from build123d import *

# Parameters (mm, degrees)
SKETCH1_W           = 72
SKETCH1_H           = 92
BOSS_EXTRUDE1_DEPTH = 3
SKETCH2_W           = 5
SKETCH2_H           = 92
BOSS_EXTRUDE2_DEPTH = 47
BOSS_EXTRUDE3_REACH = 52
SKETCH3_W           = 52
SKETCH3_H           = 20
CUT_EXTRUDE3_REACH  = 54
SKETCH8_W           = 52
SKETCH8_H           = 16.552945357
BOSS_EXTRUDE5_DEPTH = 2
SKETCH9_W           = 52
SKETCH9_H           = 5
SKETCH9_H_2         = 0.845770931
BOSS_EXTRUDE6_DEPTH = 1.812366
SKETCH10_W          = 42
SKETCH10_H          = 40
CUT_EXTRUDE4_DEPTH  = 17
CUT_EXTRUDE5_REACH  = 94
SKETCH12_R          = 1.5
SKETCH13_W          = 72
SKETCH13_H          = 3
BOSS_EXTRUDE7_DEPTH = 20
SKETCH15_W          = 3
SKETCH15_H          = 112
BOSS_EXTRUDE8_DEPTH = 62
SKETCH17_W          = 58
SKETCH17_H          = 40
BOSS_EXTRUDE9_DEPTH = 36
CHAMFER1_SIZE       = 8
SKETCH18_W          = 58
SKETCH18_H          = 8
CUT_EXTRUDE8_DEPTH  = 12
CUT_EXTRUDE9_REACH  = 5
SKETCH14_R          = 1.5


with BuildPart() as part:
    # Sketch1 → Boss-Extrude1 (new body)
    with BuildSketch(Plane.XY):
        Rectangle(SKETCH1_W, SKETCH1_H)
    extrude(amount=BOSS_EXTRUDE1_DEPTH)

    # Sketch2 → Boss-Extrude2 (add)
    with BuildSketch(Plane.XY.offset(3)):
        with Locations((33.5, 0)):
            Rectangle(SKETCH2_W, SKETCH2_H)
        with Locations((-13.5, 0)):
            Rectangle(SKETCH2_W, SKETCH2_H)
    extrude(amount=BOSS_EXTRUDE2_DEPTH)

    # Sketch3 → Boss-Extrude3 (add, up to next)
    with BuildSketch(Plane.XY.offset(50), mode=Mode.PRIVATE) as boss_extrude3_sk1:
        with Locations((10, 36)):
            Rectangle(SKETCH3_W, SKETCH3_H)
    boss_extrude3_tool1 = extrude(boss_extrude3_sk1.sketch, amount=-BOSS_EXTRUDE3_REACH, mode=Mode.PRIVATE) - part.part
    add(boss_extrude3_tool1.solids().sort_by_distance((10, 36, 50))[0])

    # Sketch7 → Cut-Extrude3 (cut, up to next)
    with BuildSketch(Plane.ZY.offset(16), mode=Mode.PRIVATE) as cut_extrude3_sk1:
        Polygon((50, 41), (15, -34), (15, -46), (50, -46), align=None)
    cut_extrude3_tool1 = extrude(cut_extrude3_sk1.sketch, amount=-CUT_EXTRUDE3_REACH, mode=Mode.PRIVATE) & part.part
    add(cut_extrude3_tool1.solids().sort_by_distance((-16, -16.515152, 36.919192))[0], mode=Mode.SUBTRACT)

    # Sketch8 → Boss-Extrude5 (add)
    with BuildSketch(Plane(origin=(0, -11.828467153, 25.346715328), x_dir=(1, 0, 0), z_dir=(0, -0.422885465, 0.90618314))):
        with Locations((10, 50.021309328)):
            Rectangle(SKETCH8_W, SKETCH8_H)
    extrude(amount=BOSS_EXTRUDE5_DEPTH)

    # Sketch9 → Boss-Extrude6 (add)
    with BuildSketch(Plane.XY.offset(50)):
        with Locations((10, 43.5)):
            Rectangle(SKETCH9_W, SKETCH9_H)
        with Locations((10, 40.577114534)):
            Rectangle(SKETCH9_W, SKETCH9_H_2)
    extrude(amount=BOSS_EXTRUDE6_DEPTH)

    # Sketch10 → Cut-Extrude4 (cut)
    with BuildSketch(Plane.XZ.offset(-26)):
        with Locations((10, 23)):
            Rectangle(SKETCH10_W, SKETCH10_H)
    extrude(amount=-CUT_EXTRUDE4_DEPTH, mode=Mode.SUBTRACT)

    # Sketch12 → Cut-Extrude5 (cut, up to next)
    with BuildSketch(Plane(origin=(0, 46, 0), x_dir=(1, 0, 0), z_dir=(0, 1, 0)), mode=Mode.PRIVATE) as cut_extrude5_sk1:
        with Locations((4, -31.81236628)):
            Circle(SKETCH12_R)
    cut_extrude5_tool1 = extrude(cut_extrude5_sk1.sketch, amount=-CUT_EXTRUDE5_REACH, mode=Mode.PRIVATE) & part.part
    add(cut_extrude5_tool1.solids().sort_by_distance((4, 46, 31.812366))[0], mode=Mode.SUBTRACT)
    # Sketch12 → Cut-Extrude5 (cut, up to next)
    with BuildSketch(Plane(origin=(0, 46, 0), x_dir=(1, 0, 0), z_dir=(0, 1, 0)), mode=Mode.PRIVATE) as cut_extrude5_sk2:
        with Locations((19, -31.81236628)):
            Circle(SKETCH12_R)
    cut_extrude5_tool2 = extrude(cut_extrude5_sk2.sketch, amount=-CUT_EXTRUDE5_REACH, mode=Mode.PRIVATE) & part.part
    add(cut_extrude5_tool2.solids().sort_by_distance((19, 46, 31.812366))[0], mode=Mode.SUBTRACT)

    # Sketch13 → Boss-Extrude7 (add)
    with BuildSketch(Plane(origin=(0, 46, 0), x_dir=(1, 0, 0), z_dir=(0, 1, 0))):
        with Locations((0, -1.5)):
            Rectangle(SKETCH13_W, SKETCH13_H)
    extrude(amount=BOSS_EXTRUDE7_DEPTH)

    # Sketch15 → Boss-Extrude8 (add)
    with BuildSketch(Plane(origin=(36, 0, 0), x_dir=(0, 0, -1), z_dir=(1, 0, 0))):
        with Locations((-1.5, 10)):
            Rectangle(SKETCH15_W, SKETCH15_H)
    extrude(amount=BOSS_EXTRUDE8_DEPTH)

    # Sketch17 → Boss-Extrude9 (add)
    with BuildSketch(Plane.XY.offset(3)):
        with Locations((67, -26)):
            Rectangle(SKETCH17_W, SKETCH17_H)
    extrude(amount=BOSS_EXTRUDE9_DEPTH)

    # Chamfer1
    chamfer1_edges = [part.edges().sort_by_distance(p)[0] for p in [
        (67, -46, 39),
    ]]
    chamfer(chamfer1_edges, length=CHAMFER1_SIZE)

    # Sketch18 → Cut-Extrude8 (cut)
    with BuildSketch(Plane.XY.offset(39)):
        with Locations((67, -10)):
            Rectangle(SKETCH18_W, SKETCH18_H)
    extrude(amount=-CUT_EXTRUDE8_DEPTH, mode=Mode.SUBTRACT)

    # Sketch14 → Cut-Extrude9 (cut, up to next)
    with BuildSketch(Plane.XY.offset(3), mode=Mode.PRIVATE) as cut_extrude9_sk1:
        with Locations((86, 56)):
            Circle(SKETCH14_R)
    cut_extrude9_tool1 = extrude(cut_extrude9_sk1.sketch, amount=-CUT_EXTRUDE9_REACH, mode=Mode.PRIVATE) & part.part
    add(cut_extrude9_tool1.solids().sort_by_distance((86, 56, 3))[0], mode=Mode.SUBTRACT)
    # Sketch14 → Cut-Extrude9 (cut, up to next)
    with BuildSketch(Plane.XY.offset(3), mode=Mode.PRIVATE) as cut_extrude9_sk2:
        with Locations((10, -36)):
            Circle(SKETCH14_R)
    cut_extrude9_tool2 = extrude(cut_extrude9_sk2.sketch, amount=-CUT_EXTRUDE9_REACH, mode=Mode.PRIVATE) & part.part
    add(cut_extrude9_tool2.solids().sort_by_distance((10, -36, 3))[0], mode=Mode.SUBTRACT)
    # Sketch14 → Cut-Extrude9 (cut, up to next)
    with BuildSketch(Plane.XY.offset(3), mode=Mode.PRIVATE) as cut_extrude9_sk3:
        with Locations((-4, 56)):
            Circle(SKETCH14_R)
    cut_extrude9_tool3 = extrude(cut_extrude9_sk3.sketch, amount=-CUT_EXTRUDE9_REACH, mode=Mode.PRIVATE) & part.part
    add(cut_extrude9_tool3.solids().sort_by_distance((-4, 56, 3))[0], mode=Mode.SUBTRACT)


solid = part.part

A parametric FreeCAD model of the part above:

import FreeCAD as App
import Part
import Sketcher
Q = App.Units.Quantity


def edges_at(feature, points):
    """Names of the edges that pass closest to the given points."""
    edges = feature.Shape.Edges
    near = lambda p: min(range(len(edges)), key=lambda i: edges[i].distToShape(Part.Vertex(*p))[0])
    return sorted({f"Edge{near(p) + 1}" for p in points})


def add_polygon(sketch, points):
    """Adds a closed chain of lines whose ends are joined by coincident constraints."""
    first, n = sketch.GeometryCount, len(points)
    for a, b in zip(points, points[1:] + points[:1]):
        sketch.addGeometry(Part.LineSegment(App.Vector(*a, 0), App.Vector(*b, 0)), False)
    for i in range(n):
        sketch.addConstraint(Sketcher.Constraint("Coincident", first + i, 2, first + (i + 1) % n, 1))

doc = App.newDocument("Part")
body = doc.addObject("PartDesign::Body", "Body")

sketch1 = doc.addObject("Sketcher::SketchObject", "Sketch")
body.addObject(sketch1)
sketch1.AttachmentSupport = (doc.XY_Plane, [""])
sketch1.MapMode = "FlatFace"
add_polygon(sketch1, [(-36, 46), (-36, -46), (36, -46), (36, 46)])
sketch1.addConstraint(Sketcher.Constraint("Vertical", 0))
sketch1.addConstraint(Sketcher.Constraint("Horizontal", 1))
sketch1.addConstraint(Sketcher.Constraint("Vertical", 2))
sketch1.addConstraint(Sketcher.Constraint("Horizontal", 3))
sketch1.addConstraint(Sketcher.Constraint("Symmetric", 0, 2, 2, 2, -1, 1))
sketch1.addConstraint(Sketcher.Constraint("DistanceX", 1, 1, 1, 2, Q("72 mm")))
sketch1.addConstraint(Sketcher.Constraint("DistanceY", 0, 2, 0, 1, Q("92 mm")))
pad1 = doc.addObject("PartDesign::Pad", "Pad")
body.addObject(pad1)
pad1.Profile = sketch1
pad1.Length = 3

sketch2 = doc.addObject("Sketcher::SketchObject", "Sketch001")
body.addObject(sketch2)
sketch2.AttachmentSupport = (doc.XY_Plane, [""])
sketch2.MapMode = "FlatFace"
sketch2.AttachmentOffset = App.Placement(App.Vector(0, 0, 3), App.Rotation())
add_polygon(sketch2, [(31, 46), (31, -46), (36, -46), (36, 46)])
add_polygon(sketch2, [(-16, 46), (-16, -46), (-11, -46), (-11, 46)])
sketch2.addConstraint(Sketcher.Constraint("Vertical", 0))
sketch2.addConstraint(Sketcher.Constraint("Horizontal", 1))
sketch2.addConstraint(Sketcher.Constraint("Vertical", 2))
sketch2.addConstraint(Sketcher.Constraint("Horizontal", 3))
sketch2.addConstraint(Sketcher.Constraint("Vertical", 4))
sketch2.addConstraint(Sketcher.Constraint("Horizontal", 5))
sketch2.addConstraint(Sketcher.Constraint("Vertical", 6))
sketch2.addConstraint(Sketcher.Constraint("Horizontal", 7))
sketch2.addConstraint(Sketcher.Constraint("Horizontal", 1, 2, 4, 2))
sketch2.addConstraint(Sketcher.Constraint("Horizontal", 3, 2, 6, 2))
sketch2.addConstraint(Sketcher.Constraint("Equal", 3, 5))
sketch2.addConstraint(Sketcher.Constraint("DistanceX", 1, 1, 1, 2, Q("5 mm")))
sketch2.addConstraint(Sketcher.Constraint("DistanceY", 0, 2, 0, 1, Q("92 mm")))
sketch2.addConstraint(Sketcher.Constraint("DistanceX", -1, 1, 0, 2, Q("31 mm")))
sketch2.addConstraint(Sketcher.Constraint("DistanceY", 0, 2, -1, 1, Q("46 mm")))
sketch2.addConstraint(Sketcher.Constraint("DistanceX", 4, 2, -1, 1, Q("16 mm")))
pad2 = doc.addObject("PartDesign::Pad", "Pad001")
body.addObject(pad2)
pad2.Profile = sketch2
pad2.Length = 47

sketch3 = doc.addObject("Sketcher::SketchObject", "Sketch002")
body.addObject(sketch3)
sketch3.AttachmentSupport = (doc.XY_Plane, [""])
sketch3.MapMode = "FlatFace"
sketch3.AttachmentOffset = App.Placement(App.Vector(0, 0, 50), App.Rotation())
add_polygon(sketch3, [(-16, 46), (-16, 26), (36, 26), (36, 46)])
sketch3.addConstraint(Sketcher.Constraint("Vertical", 0))
sketch3.addConstraint(Sketcher.Constraint("Horizontal", 1))
sketch3.addConstraint(Sketcher.Constraint("Vertical", 2))
sketch3.addConstraint(Sketcher.Constraint("Horizontal", 3))
sketch3.addConstraint(Sketcher.Constraint("DistanceX", 1, 1, 1, 2, Q("52 mm")))
sketch3.addConstraint(Sketcher.Constraint("DistanceY", 0, 2, 0, 1, Q("20 mm")))
sketch3.addConstraint(Sketcher.Constraint("DistanceX", 0, 2, -1, 1, Q("16 mm")))
sketch3.addConstraint(Sketcher.Constraint("DistanceY", -1, 1, 0, 2, Q("26 mm")))
pad3 = doc.addObject("PartDesign::Pad", "Pad002")
body.addObject(pad3)
pad3.Profile = sketch3
pad3.Type = "UpToFirst"
pad3.Reversed = True

sketch4 = doc.addObject("Sketcher::SketchObject", "Sketch003")
body.addObject(sketch4)
sketch4.AttachmentSupport = (doc.YZ_Plane, [""])
sketch4.MapMode = "FlatFace"
sketch4.AttachmentOffset = App.Placement(App.Vector(0, 0, -16), App.Rotation())
add_polygon(sketch4, [(41, 50), (-34, 15), (-46, 15), (-46, 50)])
sketch4.addConstraint(Sketcher.Constraint("Horizontal", 1))
sketch4.addConstraint(Sketcher.Constraint("Vertical", 2))
sketch4.addConstraint(Sketcher.Constraint("Horizontal", 3))
sketch4.addConstraint(Sketcher.Constraint("DistanceX", 1, 2, 1, 1, Q("12 mm")))
sketch4.addConstraint(Sketcher.Constraint("DistanceX", 3, 1, 3, 2, Q("87 mm")))
sketch4.addConstraint(Sketcher.Constraint("DistanceY", 2, 1, 2, 2, Q("35 mm")))
sketch4.addConstraint(Sketcher.Constraint("DistanceX", 0, 2, -1, 1, Q("34 mm")))
sketch4.addConstraint(Sketcher.Constraint("DistanceY", -1, 1, 0, 2, Q("15 mm")))
pocket1 = doc.addObject("PartDesign::Pocket", "Pocket")
body.addObject(pocket1)
pocket1.Profile = sketch4
pocket1.Length = 52
pocket1.Reversed = True

sketch5 = doc.addObject("Sketcher::SketchObject", "Sketch004")
body.addObject(sketch5)
sketch5.Placement = App.Placement(App.Vector(0, -11.828467, 25.346715), App.Rotation(App.Vector(1, 0, 0), App.Vector(0, 0.90618314, 0.422885465), App.Vector(0, -0.422885465, 0.90618314), "ZXY"))
add_polygon(sketch5, [(-16, 58), (-16, 42), (36, 42), (36, 58)])
sketch5.addConstraint(Sketcher.Constraint("Vertical", 0))
sketch5.addConstraint(Sketcher.Constraint("Horizontal", 1))
sketch5.addConstraint(Sketcher.Constraint("Vertical", 2))
sketch5.addConstraint(Sketcher.Constraint("Horizontal", 3))
sketch5.addConstraint(Sketcher.Constraint("DistanceX", 1, 1, 1, 2, Q("52 mm")))
sketch5.addConstraint(Sketcher.Constraint("DistanceX", 0, 2, -1, 1, Q("16 mm")))
sketch5.addConstraint(Sketcher.Constraint("DistanceY", 0, 2, 0, 1, Q("16.552945 mm")))
sketch5.addConstraint(Sketcher.Constraint("DistanceY", -1, 1, 2, 2, Q("58.297782 mm")))
pad4 = doc.addObject("PartDesign::Pad", "Pad003")
body.addObject(pad4)
pad4.Profile = sketch5
pad4.Length = 2

sketch6 = doc.addObject("Sketcher::SketchObject", "Sketch005")
body.addObject(sketch6)
sketch6.AttachmentSupport = (doc.XY_Plane, [""])
sketch6.MapMode = "FlatFace"
sketch6.AttachmentOffset = App.Placement(App.Vector(0, 0, 50), App.Rotation())
add_polygon(sketch6, [(-16, 46), (-16, 40), (36, 40), (36, 46)])
sketch6.addConstraint(Sketcher.Constraint("Vertical", 0))
sketch6.addConstraint(Sketcher.Constraint("Horizontal", 1))
sketch6.addConstraint(Sketcher.Constraint("Vertical", 2))
sketch6.addConstraint(Sketcher.Constraint("Horizontal", 3))
sketch6.addConstraint(Sketcher.Constraint("DistanceX", 1, 1, 1, 2, Q("52 mm")))
sketch6.addConstraint(Sketcher.Constraint("DistanceX", 0, 2, -1, 1, Q("16 mm")))
sketch6.addConstraint(Sketcher.Constraint("DistanceY", -1, 1, 2, 2, Q("46 mm")))
sketch6.addConstraint(Sketcher.Constraint("DistanceY", 0, 2, 0, 1, Q("5.845771 mm")))
pad5 = doc.addObject("PartDesign::Pad", "Pad004")
body.addObject(pad5)
pad5.Profile = sketch6
pad5.Length = 1.812366

sketch7 = doc.addObject("Sketcher::SketchObject", "Sketch006")
body.addObject(sketch7)
sketch7.AttachmentSupport = (doc.XZ_Plane, [""])
sketch7.MapMode = "FlatFace"
sketch7.AttachmentOffset = App.Placement(App.Vector(0, 0, -26), App.Rotation())
add_polygon(sketch7, [(-11, 43), (-11, 3), (31, 3), (31, 43)])
sketch7.addConstraint(Sketcher.Constraint("Vertical", 0))
sketch7.addConstraint(Sketcher.Constraint("Horizontal", 1))
sketch7.addConstraint(Sketcher.Constraint("Vertical", 2))
sketch7.addConstraint(Sketcher.Constraint("Horizontal", 3))
sketch7.addConstraint(Sketcher.Constraint("DistanceX", 1, 1, 1, 2, Q("42 mm")))
sketch7.addConstraint(Sketcher.Constraint("DistanceY", 0, 2, 0, 1, Q("40 mm")))
sketch7.addConstraint(Sketcher.Constraint("DistanceX", 0, 2, -1, 1, Q("11 mm")))
sketch7.addConstraint(Sketcher.Constraint("DistanceY", -1, 1, 0, 2, Q("3 mm")))
pocket2 = doc.addObject("PartDesign::Pocket", "Pocket001")
body.addObject(pocket2)
pocket2.Profile = sketch7
pocket2.Length = 17

sketch8 = doc.addObject("Sketcher::SketchObject", "Sketch007")
body.addObject(sketch8)
sketch8.AttachmentSupport = (doc.XZ_Plane, [""])
sketch8.MapMode = "FlatFace"
sketch8.AttachmentOffset = App.Placement(App.Vector(0, 0, -46), App.Rotation())
sketch8.addGeometry(Part.Circle(App.Vector(4, 31.8, 0), App.Vector(0, 0, 1), 1.5), False)
sketch8.addConstraint(Sketcher.Constraint("Diameter", 0, Q("3 mm")))
sketch8.addConstraint(Sketcher.Constraint("DistanceX", -1, 1, 0, 3, Q("4 mm")))
sketch8.addConstraint(Sketcher.Constraint("DistanceY", -1, 1, 0, 3, Q("31.812366 mm")))
pocket3 = doc.addObject("PartDesign::Pocket", "Pocket002")
body.addObject(pocket3)
pocket3.Profile = sketch8
pocket3.Type = "UpToFirst"
pocket3.Reversed = True

sketch9 = doc.addObject("Sketcher::SketchObject", "Sketch008")
body.addObject(sketch9)
sketch9.AttachmentSupport = (doc.XZ_Plane, [""])
sketch9.MapMode = "FlatFace"
sketch9.AttachmentOffset = App.Placement(App.Vector(0, 0, -46), App.Rotation())
sketch9.addGeometry(Part.Circle(App.Vector(19, 31.8, 0), App.Vector(0, 0, 1), 1.5), False)
sketch9.addConstraint(Sketcher.Constraint("Diameter", 0, Q("3 mm")))
sketch9.addConstraint(Sketcher.Constraint("DistanceX", -1, 1, 0, 3, Q("19 mm")))
sketch9.addConstraint(Sketcher.Constraint("DistanceY", -1, 1, 0, 3, Q("31.812366 mm")))
pocket4 = doc.addObject("PartDesign::Pocket", "Pocket003")
body.addObject(pocket4)
pocket4.Profile = sketch9
pocket4.Type = "UpToFirst"
pocket4.Reversed = True

sketch10 = doc.addObject("Sketcher::SketchObject", "Sketch009")
body.addObject(sketch10)
sketch10.AttachmentSupport = (doc.XZ_Plane, [""])
sketch10.MapMode = "FlatFace"
sketch10.AttachmentOffset = App.Placement(App.Vector(0, 0, -46), App.Rotation())
add_polygon(sketch10, [(-36, 0), (-36, 3), (36, 3), (36, 0)])
sketch10.addConstraint(Sketcher.Constraint("Vertical", 0))
sketch10.addConstraint(Sketcher.Constraint("Horizontal", 1))
sketch10.addConstraint(Sketcher.Constraint("Vertical", 2))
sketch10.addConstraint(Sketcher.Constraint("Horizontal", 3))
sketch10.addConstraint(Sketcher.Constraint("Symmetric", 2, 2, 3, 2, -1, 1))
sketch10.addConstraint(Sketcher.Constraint("DistanceX", 1, 1, 1, 2, Q("72 mm")))
sketch10.addConstraint(Sketcher.Constraint("DistanceY", 0, 1, 0, 2, Q("3 mm")))
pad6 = doc.addObject("PartDesign::Pad", "Pad005")
body.addObject(pad6)
pad6.Profile = sketch10
pad6.Length = 20
pad6.Reversed = True

sketch11 = doc.addObject("Sketcher::SketchObject", "Sketch010")
body.addObject(sketch11)
sketch11.AttachmentSupport = (doc.YZ_Plane, [""])
sketch11.MapMode = "FlatFace"
sketch11.AttachmentOffset = App.Placement(App.Vector(0, 0, 36), App.Rotation())
add_polygon(sketch11, [(66, 3), (-46, 3), (-46, 0), (66, 0)])
sketch11.addConstraint(Sketcher.Constraint("Horizontal", 0))
sketch11.addConstraint(Sketcher.Constraint("Vertical", 1))
sketch11.addConstraint(Sketcher.Constraint("Horizontal", 2))
sketch11.addConstraint(Sketcher.Constraint("Vertical", 3))
sketch11.addConstraint(Sketcher.Constraint("PointOnObject", 1, 2, -1))
sketch11.addConstraint(Sketcher.Constraint("DistanceX", 0, 2, 0, 1, Q("112 mm")))
sketch11.addConstraint(Sketcher.Constraint("DistanceY", 1, 2, 1, 1, Q("3 mm")))
sketch11.addConstraint(Sketcher.Constraint("DistanceX", 0, 2, -1, 1, Q("46 mm")))
pad7 = doc.addObject("PartDesign::Pad", "Pad006")
body.addObject(pad7)
pad7.Profile = sketch11
pad7.Length = 62

sketch12 = doc.addObject("Sketcher::SketchObject", "Sketch011")
body.addObject(sketch12)
sketch12.AttachmentSupport = (doc.XY_Plane, [""])
sketch12.MapMode = "FlatFace"
sketch12.AttachmentOffset = App.Placement(App.Vector(0, 0, 3), App.Rotation())
add_polygon(sketch12, [(38, -6), (38, -46), (96, -46), (96, -6)])
sketch12.addConstraint(Sketcher.Constraint("Vertical", 0))
sketch12.addConstraint(Sketcher.Constraint("Horizontal", 1))
sketch12.addConstraint(Sketcher.Constraint("Vertical", 2))
sketch12.addConstraint(Sketcher.Constraint("Horizontal", 3))
sketch12.addConstraint(Sketcher.Constraint("DistanceX", 1, 1, 1, 2, Q("58 mm")))
sketch12.addConstraint(Sketcher.Constraint("DistanceY", 0, 2, 0, 1, Q("40 mm")))
sketch12.addConstraint(Sketcher.Constraint("DistanceX", -1, 1, 0, 2, Q("38 mm")))
sketch12.addConstraint(Sketcher.Constraint("DistanceY", 0, 2, -1, 1, Q("46 mm")))
pad8 = doc.addObject("PartDesign::Pad", "Pad007")
body.addObject(pad8)
pad8.Profile = sketch12
pad8.Length = 36
doc.recompute()

chamfer = doc.addObject("PartDesign::Chamfer", "Chamfer")
body.addObject(chamfer)
chamfer.Base = (pad8, edges_at(pad8, [(67, -46, 39)]))
chamfer.Size = 8

sketch13 = doc.addObject("Sketcher::SketchObject", "Sketch012")
body.addObject(sketch13)
sketch13.AttachmentSupport = (doc.XY_Plane, [""])
sketch13.MapMode = "FlatFace"
sketch13.AttachmentOffset = App.Placement(App.Vector(0, 0, 39), App.Rotation())
add_polygon(sketch13, [(38, -6), (38, -14), (96, -14), (96, -6)])
sketch13.addConstraint(Sketcher.Constraint("Vertical", 0))
sketch13.addConstraint(Sketcher.Constraint("Horizontal", 1))
sketch13.addConstraint(Sketcher.Constraint("Vertical", 2))
sketch13.addConstraint(Sketcher.Constraint("Horizontal", 3))
sketch13.addConstraint(Sketcher.Constraint("DistanceX", 1, 1, 1, 2, Q("58 mm")))
sketch13.addConstraint(Sketcher.Constraint("DistanceY", 0, 2, 0, 1, Q("8 mm")))
sketch13.addConstraint(Sketcher.Constraint("DistanceX", -1, 1, 0, 2, Q("38 mm")))
sketch13.addConstraint(Sketcher.Constraint("DistanceY", 0, 2, -1, 1, Q("14 mm")))
pocket5 = doc.addObject("PartDesign::Pocket", "Pocket004")
body.addObject(pocket5)
pocket5.Profile = sketch13
pocket5.Length = 12

sketch14 = doc.addObject("Sketcher::SketchObject", "Sketch013")
body.addObject(sketch14)
sketch14.AttachmentSupport = (doc.XY_Plane, [""])
sketch14.MapMode = "FlatFace"
sketch14.AttachmentOffset = App.Placement(App.Vector(0, 0, 3), App.Rotation())
sketch14.addGeometry(Part.Circle(App.Vector(86, 56, 0), App.Vector(0, 0, 1), 1.5), False)
sketch14.addConstraint(Sketcher.Constraint("Diameter", 0, Q("3 mm")))
sketch14.addConstraint(Sketcher.Constraint("DistanceX", -1, 1, 0, 3, Q("86 mm")))
sketch14.addConstraint(Sketcher.Constraint("DistanceY", -1, 1, 0, 3, Q("56 mm")))
pocket6 = doc.addObject("PartDesign::Pocket", "Pocket005")
body.addObject(pocket6)
pocket6.Profile = sketch14
pocket6.Type = "UpToFirst"

sketch15 = doc.addObject("Sketcher::SketchObject", "Sketch014")
body.addObject(sketch15)
sketch15.AttachmentSupport = (doc.XY_Plane, [""])
sketch15.MapMode = "FlatFace"
sketch15.AttachmentOffset = App.Placement(App.Vector(0, 0, 3), App.Rotation())
sketch15.addGeometry(Part.Circle(App.Vector(10, -36, 0), App.Vector(0, 0, 1), 1.5), False)
sketch15.addConstraint(Sketcher.Constraint("Diameter", 0, Q("3 mm")))
sketch15.addConstraint(Sketcher.Constraint("DistanceX", -1, 1, 0, 3, Q("10 mm")))
sketch15.addConstraint(Sketcher.Constraint("DistanceY", 0, 3, -1, 1, Q("36 mm")))
pocket7 = doc.addObject("PartDesign::Pocket", "Pocket006")
body.addObject(pocket7)
pocket7.Profile = sketch15
pocket7.Type = "UpToFirst"

sketch16 = doc.addObject("Sketcher::SketchObject", "Sketch015")
body.addObject(sketch16)
sketch16.AttachmentSupport = (doc.XY_Plane, [""])
sketch16.MapMode = "FlatFace"
sketch16.AttachmentOffset = App.Placement(App.Vector(0, 0, 3), App.Rotation())
sketch16.addGeometry(Part.Circle(App.Vector(-4, 56, 0), App.Vector(0, 0, 1), 1.5), False)
sketch16.addConstraint(Sketcher.Constraint("Diameter", 0, Q("3 mm")))
sketch16.addConstraint(Sketcher.Constraint("DistanceX", 0, 3, -1, 1, Q("4 mm")))
sketch16.addConstraint(Sketcher.Constraint("DistanceY", -1, 1, 0, 3, Q("56 mm")))
pocket8 = doc.addObject("PartDesign::Pocket", "Pocket007")
body.addObject(pocket8)
pocket8.Profile = sketch16
pocket8.Type = "UpToFirst"

doc.recompute()
